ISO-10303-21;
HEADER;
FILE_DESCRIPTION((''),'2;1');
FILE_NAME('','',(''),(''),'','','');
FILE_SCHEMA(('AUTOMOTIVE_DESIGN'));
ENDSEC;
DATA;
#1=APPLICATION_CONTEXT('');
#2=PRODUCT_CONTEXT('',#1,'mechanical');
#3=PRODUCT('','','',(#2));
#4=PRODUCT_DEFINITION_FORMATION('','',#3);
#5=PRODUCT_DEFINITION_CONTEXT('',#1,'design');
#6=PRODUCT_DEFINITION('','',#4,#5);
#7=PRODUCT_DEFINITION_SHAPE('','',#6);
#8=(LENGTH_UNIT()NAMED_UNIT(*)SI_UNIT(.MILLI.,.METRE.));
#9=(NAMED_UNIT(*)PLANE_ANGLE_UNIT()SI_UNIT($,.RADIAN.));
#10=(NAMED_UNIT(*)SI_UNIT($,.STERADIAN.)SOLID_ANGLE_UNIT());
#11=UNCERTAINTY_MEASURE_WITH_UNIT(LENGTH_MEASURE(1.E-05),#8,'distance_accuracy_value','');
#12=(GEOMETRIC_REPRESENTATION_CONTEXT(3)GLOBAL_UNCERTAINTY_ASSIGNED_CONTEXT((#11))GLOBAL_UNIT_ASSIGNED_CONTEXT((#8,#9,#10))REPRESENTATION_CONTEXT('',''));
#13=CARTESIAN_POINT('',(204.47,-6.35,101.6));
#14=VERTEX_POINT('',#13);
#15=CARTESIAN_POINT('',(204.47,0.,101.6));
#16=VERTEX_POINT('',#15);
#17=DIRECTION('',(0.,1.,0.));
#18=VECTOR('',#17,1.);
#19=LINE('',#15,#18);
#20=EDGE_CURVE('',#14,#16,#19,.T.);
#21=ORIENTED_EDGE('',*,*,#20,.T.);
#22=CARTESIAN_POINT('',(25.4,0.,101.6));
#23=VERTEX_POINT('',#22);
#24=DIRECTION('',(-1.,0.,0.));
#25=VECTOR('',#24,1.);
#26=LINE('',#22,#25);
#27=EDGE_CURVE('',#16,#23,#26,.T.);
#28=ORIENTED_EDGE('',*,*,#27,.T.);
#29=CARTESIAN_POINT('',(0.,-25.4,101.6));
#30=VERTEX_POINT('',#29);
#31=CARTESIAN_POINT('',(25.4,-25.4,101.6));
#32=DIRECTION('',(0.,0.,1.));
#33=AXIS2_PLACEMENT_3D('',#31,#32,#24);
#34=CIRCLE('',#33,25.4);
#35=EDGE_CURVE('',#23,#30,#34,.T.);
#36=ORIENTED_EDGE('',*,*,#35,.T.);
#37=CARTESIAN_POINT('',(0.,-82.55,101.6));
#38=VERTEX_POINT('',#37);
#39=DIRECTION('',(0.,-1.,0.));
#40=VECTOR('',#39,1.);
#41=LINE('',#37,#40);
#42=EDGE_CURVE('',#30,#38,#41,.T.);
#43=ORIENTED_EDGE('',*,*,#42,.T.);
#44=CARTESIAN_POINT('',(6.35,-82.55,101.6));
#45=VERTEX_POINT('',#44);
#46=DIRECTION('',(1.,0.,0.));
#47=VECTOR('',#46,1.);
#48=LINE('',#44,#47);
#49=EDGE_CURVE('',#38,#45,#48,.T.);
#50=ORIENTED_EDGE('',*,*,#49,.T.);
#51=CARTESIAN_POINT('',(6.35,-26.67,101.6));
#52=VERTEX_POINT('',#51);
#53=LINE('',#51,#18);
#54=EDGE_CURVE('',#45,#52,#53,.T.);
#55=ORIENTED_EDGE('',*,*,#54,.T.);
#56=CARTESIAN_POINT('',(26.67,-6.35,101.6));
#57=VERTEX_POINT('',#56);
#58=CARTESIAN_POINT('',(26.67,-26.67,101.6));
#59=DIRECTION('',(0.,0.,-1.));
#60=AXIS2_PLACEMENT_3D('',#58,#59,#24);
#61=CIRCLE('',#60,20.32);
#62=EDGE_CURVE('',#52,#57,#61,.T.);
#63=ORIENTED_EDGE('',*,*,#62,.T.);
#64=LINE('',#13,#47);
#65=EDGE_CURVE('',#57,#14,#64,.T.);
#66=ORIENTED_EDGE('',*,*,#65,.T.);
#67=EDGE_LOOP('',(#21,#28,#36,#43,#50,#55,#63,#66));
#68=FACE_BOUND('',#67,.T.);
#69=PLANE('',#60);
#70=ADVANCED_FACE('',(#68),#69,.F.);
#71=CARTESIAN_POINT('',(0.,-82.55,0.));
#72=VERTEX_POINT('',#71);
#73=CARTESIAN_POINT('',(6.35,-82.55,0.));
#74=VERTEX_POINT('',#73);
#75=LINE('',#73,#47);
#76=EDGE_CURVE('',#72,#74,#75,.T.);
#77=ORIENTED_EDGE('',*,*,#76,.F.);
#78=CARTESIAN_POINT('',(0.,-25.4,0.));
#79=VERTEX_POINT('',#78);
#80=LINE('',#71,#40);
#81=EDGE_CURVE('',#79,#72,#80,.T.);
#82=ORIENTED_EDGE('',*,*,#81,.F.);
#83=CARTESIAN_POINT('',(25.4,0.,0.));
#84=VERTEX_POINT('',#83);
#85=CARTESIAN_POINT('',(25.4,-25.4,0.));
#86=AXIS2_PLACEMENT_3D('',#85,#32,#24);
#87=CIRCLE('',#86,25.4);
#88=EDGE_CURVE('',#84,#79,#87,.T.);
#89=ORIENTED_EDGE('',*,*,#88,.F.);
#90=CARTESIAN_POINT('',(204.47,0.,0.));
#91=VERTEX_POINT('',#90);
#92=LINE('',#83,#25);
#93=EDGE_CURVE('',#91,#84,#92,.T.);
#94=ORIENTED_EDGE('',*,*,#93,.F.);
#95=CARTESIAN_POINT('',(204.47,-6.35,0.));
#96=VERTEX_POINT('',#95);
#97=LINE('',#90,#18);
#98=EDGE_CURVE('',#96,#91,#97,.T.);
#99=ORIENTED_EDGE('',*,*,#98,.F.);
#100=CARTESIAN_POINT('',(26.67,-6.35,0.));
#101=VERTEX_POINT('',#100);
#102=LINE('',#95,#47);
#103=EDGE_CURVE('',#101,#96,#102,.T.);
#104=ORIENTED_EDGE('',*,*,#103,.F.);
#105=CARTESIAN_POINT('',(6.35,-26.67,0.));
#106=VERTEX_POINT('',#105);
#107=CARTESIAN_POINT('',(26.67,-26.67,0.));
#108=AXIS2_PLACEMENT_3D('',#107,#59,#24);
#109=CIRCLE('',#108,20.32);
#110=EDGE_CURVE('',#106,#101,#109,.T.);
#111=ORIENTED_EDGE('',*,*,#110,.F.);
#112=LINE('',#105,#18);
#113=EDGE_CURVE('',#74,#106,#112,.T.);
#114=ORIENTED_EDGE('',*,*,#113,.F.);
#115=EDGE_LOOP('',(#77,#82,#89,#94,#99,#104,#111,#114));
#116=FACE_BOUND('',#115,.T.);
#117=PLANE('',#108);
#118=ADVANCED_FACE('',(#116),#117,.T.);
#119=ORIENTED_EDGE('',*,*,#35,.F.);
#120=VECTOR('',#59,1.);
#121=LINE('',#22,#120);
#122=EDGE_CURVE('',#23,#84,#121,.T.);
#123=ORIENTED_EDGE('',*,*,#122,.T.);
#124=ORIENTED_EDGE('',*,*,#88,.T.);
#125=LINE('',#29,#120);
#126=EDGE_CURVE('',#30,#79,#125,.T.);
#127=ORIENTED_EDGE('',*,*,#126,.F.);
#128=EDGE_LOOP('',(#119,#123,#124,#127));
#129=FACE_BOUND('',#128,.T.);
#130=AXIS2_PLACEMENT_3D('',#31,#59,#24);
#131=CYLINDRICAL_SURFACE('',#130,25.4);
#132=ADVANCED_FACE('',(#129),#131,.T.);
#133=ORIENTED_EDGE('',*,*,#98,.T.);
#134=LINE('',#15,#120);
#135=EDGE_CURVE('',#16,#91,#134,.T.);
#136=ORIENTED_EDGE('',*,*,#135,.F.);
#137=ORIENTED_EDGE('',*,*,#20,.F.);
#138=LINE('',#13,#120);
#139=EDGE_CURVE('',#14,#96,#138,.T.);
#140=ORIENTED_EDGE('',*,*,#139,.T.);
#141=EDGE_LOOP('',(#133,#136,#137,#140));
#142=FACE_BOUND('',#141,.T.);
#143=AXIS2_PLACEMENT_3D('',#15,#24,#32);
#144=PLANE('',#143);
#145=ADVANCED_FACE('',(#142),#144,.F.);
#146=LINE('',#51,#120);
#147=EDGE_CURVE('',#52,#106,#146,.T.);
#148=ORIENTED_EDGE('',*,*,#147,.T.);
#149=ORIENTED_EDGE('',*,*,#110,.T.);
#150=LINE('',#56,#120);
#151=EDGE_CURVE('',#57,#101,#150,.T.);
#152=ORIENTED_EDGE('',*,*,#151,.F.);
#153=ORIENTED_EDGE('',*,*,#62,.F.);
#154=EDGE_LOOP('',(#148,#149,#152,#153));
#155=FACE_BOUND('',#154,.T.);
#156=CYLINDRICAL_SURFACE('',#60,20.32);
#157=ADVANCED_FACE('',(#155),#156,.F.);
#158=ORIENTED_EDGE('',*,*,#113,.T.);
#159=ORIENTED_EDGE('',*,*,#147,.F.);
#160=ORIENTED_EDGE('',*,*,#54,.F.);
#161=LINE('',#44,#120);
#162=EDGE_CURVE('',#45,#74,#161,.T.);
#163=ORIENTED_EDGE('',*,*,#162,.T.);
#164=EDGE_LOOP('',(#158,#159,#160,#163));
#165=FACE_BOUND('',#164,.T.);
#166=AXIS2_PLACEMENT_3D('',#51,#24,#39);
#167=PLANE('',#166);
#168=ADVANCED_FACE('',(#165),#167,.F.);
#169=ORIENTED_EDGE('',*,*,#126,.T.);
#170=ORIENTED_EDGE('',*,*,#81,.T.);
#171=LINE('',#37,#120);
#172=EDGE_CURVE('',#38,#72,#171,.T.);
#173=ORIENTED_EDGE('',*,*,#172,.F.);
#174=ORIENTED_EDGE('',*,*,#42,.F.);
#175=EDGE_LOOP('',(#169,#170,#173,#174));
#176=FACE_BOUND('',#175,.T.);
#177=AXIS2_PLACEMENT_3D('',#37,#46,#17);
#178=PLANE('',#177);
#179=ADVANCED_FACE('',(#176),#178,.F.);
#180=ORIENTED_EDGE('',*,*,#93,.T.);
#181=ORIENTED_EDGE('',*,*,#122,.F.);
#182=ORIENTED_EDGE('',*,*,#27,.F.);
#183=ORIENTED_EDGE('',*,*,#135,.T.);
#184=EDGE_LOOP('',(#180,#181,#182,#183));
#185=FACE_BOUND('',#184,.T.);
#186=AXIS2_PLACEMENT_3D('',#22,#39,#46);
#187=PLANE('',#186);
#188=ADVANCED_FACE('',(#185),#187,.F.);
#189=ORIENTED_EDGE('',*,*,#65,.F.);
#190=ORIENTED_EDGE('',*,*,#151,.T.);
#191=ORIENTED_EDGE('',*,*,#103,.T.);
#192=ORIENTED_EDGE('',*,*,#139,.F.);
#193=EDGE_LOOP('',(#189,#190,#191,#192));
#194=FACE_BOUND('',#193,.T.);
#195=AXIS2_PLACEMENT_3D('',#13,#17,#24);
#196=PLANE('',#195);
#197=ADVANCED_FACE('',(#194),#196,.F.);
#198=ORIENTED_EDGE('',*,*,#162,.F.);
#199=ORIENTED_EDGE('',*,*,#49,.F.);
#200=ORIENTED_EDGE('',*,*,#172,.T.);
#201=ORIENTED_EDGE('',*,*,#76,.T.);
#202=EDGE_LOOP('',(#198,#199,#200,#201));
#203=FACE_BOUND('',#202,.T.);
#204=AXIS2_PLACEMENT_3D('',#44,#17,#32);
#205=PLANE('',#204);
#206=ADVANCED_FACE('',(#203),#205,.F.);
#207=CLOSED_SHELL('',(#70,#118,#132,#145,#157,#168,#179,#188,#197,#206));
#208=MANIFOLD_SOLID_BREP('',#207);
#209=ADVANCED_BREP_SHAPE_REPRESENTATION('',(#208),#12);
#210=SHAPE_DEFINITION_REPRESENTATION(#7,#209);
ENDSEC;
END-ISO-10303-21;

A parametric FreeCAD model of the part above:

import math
import FreeCAD as App
import Part
import Sketcher
Q = App.Units.Quantity

doc = App.newDocument("Part")
body = doc.addObject("PartDesign::Body", "Body")

sketch1 = body.newObject("Sketcher::SketchObject", "Sketch")
sketch1.AttachmentSupport = (doc.getObject("XY_Plane"), [""])
sketch1.MapMode = "FlatFace"
sketch1.addGeometry(Part.LineSegment(App.Vector(204, 0, 0), App.Vector(25, 0, 0)), False)
sketch1.addGeometry(Part.ArcOfCircle(Part.Circle(App.Vector(25, -25, 0), App.Vector(0, 0, 1), 25), math.radians(90), math.radians(180)), False)
sketch1.addGeometry(Part.LineSegment(App.Vector(0, -25, 0), App.Vector(0, -83, 0)), False)
sketch1.addGeometry(Part.LineSegment(App.Vector(0, -83, 0), App.Vector(6, -83, 0)), False)
sketch1.addGeometry(Part.LineSegment(App.Vector(6, -83, 0), App.Vector(6, -27, 0)), False)
sketch1.addGeometry(Part.ArcOfCircle(Part.Circle(App.Vector(27, -27, 0), App.Vector(0, 0, 1), 20), math.radians(90), math.radians(180)), False)
sketch1.addGeometry(Part.LineSegment(App.Vector(27, -6, 0), App.Vector(204, -6, 0)), False)
sketch1.addGeometry(Part.LineSegment(App.Vector(204, -6, 0), App.Vector(204, 0, 0)), False)
sketch1.addConstraint(Sketcher.Constraint("Tangent", 0, 2, 1, 1))
sketch1.addConstraint(Sketcher.Constraint("Tangent", 1, 2, 2, 1))
sketch1.addConstraint(Sketcher.Constraint("Coincident", 2, 2, 3, 1))
sketch1.addConstraint(Sketcher.Constraint("Coincident", 3, 2, 4, 1))
sketch1.addConstraint(Sketcher.Constraint("Tangent", 4, 2, 5, 2))
sketch1.addConstraint(Sketcher.Constraint("Tangent", 5, 1, 6, 1))
sketch1.addConstraint(Sketcher.Constraint("Coincident", 6, 2, 7, 1))
sketch1.addConstraint(Sketcher.Constraint("Coincident", 7, 2, 0, 1))
sketch1.addConstraint(Sketcher.Constraint("Horizontal", 0))
sketch1.addConstraint(Sketcher.Constraint("Vertical", 2))
sketch1.addConstraint(Sketcher.Constraint("Horizontal", 3))
sketch1.addConstraint(Sketcher.Constraint("Vertical", 4))
sketch1.addConstraint(Sketcher.Constraint("Horizontal", 6))
sketch1.addConstraint(Sketcher.Constraint("Vertical", 7))
sketch1.addConstraint(Sketcher.Constraint("PointOnObject", 0, 2, -1))
sketch1.addConstraint(Sketcher.Constraint("PointOnObject", 1, 2, -2))
sketch1.addConstraint(Sketcher.Constraint("Equal", 3, 7))
sketch1.addConstraint(Sketcher.Constraint("Radius", 1, Q("1 in")))
sketch1.addConstraint(Sketcher.Constraint("Radius", 5, Q("0.8 in")))
sketch1.addConstraint(Sketcher.Constraint("DistanceX", 6, 1, 6, 2, Q("7 in")))
sketch1.addConstraint(Sketcher.Constraint("DistanceY", 4, 1, 4, 2, Q("2.2 in")))
sketch1.addConstraint(Sketcher.Constraint("DistanceX", 0, 2, 0, 1, Q("7.05 in")))
pad1 = body.newObject("PartDesign::Pad", "Pad")
pad1.Profile = sketch1
pad1.Length = Q("4 in")

doc.recompute()
